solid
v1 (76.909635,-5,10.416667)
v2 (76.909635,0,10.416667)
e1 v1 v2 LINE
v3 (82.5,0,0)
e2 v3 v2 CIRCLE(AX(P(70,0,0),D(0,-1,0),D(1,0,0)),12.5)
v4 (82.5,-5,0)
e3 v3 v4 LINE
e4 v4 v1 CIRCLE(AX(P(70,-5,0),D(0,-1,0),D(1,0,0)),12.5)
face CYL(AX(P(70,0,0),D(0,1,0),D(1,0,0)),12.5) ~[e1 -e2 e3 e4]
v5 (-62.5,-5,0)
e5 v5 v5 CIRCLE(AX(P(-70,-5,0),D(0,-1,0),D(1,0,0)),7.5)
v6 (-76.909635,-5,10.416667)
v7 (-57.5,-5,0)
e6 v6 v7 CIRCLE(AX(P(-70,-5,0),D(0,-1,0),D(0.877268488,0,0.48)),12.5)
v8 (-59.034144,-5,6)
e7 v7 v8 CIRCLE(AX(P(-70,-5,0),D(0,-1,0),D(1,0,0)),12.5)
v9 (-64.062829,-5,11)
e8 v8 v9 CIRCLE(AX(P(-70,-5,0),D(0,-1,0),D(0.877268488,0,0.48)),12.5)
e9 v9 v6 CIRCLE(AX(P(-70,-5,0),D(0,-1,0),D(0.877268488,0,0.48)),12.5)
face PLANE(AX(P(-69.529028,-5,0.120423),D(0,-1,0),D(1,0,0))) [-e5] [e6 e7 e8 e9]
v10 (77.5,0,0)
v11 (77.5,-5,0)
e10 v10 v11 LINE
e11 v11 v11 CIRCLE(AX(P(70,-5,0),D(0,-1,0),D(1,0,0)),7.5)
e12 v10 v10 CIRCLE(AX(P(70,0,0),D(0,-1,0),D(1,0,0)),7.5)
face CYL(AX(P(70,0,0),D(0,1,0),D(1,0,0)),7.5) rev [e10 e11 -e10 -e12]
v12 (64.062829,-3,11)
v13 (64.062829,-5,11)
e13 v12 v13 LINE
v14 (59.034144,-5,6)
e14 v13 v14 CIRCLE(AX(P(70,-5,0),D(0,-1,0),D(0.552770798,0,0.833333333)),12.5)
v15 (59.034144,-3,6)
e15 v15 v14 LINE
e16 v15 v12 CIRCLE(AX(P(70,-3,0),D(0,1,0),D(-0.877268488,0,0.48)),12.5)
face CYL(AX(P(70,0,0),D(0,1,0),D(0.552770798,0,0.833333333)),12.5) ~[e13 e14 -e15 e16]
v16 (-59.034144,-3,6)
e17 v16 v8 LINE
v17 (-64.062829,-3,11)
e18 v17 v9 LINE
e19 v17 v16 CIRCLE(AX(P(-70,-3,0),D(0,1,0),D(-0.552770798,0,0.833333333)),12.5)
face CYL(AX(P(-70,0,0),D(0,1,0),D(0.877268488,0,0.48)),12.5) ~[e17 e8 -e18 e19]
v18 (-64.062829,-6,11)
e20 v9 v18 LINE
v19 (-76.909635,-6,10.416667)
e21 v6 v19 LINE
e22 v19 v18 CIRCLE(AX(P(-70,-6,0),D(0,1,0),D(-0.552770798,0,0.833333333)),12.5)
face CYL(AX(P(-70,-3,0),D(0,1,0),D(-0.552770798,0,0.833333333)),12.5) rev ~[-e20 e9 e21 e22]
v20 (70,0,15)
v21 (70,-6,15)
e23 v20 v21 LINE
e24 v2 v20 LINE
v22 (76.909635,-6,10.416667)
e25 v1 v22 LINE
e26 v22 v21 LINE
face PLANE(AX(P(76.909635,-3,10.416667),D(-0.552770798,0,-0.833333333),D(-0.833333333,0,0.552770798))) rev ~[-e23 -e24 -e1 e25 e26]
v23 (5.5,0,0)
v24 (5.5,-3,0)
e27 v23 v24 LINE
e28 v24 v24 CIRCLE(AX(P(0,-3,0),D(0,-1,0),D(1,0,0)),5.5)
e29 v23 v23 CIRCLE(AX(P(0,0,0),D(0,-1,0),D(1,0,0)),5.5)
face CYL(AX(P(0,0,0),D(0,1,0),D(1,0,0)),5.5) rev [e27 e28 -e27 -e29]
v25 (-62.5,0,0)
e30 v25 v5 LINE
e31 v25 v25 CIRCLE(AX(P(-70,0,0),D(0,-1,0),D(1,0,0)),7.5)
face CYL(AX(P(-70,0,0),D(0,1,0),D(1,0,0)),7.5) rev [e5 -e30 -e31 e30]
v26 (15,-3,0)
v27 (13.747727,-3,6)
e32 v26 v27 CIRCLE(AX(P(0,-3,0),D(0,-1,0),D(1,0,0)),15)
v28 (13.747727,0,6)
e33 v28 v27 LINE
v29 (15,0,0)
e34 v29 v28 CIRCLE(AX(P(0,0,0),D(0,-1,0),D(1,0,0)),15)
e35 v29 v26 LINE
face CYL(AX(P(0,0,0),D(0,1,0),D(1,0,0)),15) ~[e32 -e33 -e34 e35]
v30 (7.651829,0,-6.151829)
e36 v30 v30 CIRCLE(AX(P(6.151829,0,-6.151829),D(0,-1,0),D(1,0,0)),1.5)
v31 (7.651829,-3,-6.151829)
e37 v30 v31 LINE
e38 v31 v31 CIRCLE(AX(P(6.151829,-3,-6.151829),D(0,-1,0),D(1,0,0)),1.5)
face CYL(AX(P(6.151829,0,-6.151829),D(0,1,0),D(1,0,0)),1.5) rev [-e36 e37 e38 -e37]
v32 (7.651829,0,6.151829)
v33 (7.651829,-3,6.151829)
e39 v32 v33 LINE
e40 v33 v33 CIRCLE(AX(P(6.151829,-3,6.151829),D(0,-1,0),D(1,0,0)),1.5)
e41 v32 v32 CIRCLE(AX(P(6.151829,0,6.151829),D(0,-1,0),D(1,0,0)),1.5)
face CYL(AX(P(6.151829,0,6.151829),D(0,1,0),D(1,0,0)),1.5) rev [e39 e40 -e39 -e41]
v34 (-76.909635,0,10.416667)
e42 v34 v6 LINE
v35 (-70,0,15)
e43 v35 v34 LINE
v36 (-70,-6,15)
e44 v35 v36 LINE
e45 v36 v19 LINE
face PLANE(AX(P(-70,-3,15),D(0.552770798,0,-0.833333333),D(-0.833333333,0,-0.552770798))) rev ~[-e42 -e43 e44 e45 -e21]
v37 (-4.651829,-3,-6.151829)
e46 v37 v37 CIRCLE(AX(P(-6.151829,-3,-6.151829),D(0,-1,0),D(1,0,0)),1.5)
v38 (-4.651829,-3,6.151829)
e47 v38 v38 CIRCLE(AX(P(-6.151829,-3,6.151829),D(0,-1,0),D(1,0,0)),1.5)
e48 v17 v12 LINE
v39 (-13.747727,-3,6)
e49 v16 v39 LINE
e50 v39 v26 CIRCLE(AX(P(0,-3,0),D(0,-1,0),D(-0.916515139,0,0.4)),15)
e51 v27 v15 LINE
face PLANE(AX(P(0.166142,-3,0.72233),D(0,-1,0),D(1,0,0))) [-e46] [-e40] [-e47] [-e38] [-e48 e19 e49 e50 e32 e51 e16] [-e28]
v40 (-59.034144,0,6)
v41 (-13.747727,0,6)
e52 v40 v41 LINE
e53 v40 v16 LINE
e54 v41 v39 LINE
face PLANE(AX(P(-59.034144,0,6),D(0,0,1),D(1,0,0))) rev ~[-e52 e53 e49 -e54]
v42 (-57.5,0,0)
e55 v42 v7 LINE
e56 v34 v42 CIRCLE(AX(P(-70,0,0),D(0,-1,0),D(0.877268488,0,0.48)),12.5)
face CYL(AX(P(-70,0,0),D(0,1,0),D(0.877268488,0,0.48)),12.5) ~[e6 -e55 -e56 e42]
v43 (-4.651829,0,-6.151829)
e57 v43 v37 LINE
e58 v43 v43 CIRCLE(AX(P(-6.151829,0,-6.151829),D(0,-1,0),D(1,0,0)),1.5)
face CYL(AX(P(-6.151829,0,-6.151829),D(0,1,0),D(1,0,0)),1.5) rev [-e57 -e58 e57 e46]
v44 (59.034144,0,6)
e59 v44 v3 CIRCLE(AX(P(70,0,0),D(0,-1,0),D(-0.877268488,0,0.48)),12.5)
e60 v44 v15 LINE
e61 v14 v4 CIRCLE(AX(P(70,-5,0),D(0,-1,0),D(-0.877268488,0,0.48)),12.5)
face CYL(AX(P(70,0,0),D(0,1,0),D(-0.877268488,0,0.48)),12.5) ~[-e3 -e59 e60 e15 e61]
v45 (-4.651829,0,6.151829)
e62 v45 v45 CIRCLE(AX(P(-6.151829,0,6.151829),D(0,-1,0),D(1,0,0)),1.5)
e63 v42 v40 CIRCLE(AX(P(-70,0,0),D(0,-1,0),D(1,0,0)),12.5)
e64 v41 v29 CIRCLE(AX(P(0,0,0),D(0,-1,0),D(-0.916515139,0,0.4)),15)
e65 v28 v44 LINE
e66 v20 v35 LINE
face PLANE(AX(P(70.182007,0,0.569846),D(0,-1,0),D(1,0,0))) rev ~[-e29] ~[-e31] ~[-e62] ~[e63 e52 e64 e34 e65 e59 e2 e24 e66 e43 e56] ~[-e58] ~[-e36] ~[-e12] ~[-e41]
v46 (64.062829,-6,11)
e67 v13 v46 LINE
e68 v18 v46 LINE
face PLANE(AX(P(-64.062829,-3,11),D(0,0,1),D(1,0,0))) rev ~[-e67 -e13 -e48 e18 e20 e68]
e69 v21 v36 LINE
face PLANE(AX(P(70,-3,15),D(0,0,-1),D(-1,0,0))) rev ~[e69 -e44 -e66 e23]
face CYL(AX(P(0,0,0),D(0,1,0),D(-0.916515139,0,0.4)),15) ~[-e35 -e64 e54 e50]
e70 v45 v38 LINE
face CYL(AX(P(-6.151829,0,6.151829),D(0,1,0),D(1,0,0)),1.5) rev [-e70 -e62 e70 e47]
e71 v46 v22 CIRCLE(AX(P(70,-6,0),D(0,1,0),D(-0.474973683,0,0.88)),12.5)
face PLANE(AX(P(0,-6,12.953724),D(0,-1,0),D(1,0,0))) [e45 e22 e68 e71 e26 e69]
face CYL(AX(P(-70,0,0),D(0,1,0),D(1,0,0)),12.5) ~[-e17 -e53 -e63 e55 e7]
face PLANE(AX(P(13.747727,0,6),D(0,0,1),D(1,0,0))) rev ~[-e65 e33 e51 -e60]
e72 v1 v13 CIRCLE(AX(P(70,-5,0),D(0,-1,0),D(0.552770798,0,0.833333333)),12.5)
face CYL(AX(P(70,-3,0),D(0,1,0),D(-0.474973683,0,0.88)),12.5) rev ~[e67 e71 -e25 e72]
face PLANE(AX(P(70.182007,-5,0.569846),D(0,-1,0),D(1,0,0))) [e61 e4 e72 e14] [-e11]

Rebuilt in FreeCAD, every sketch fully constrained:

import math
import FreeCAD as App
import Part
import Sketcher
from FreeCAD import Vector

doc = App.newDocument("Part")
body = doc.addObject("PartDesign::Body", "Body")

# Sketch on XZ plane
sketch1 = doc.addObject("Sketcher::SketchObject", "Sketch")
body.addObject(sketch1)
sketch1.AttachmentSupport = (doc.XZ_Plane, [""])
sketch1.MapMode = "FlatFace"
sketch1.addGeometry([
    Part.ArcOfCircle(Part.Circle(Vector(0, 0, 0), Vector(0, 0, 1), 15), math.radians(0), math.radians(24)),  # 0
    Part.LineSegment(Vector(13.7, 6, 0), Vector(59, 6, 0)),  # 1
    Part.ArcOfCircle(Part.Circle(Vector(70, 0, 0), Vector(0, 0, 1), 12.5), math.radians(56), math.radians(151)),  # 2
    Part.LineSegment(Vector(76.9, 10.4, 0), Vector(70, 15, 0)),  # 3
    Part.LineSegment(Vector(70, 15, 0), Vector(-70, 15, 0)),  # 4
    Part.LineSegment(Vector(-70, 15, 0), Vector(-76.9, 10.4, 0)),  # 5
    Part.ArcOfCircle(Part.Circle(Vector(-70, 0, 0), Vector(0, 0, 1), 12.5), math.radians(29), math.radians(124)),  # 6
    Part.LineSegment(Vector(-59, 6, 0), Vector(-13.7, 6, 0)),  # 7
    Part.ArcOfCircle(Part.Circle(Vector(0, 0, 0), Vector(0, 0, 1), 15), math.radians(156), math.radians(360)),  # 8
    Part.Circle(Vector(-6.2, -6.2, 0), Vector(0, 0, 1), 1.5),  # 9
    Part.Circle(Vector(0, 0, 0), Vector(0, 0, 1), 5.5),  # 10
    Part.Circle(Vector(6.2, -6.2, 0), Vector(0, 0, 1), 1.5),  # 11
    Part.Circle(Vector(-6.2, 6.2, 0), Vector(0, 0, 1), 1.5),  # 12
    Part.Circle(Vector(6.2, 6.2, 0), Vector(0, 0, 1), 1.5),  # 13
], False)
sketch1.addConstraint([
    Sketcher.Constraint("Coincident", 0, 2, 1, 1),
    Sketcher.Constraint("Coincident", 1, 2, 2, 2),
    Sketcher.Constraint("Tangent", 2, 1, 3, 1),
    Sketcher.Constraint("Coincident", 3, 2, 4, 1),
    Sketcher.Constraint("Coincident", 4, 2, 5, 1),
    Sketcher.Constraint("Tangent", 5, 2, 6, 2),
    Sketcher.Constraint("Coincident", 6, 1, 7, 1),
    Sketcher.Constraint("Coincident", 7, 2, 8, 1),
    Sketcher.Constraint("Tangent", 8, 2, 0, 1),
    Sketcher.Constraint("Horizontal", 1),
    Sketcher.Constraint("Horizontal", 4),
    Sketcher.Constraint("Horizontal", 7),
    Sketcher.Constraint("Coincident", 0, 3, -1, 1),
    Sketcher.Constraint("Coincident", 10, 3, -1, 1),
    Sketcher.Constraint("Equal", 2, 6),
    Sketcher.Constraint("Equal", 0, 8),
    Sketcher.Constraint("Equal", 9, 11),
    Sketcher.Constraint("Equal", 11, 12),
    Sketcher.Constraint("Equal", 12, 13),
    Sketcher.Constraint("Symmetric", 2, 3, 6, 3, -1, 1),
    Sketcher.Constraint("Symmetric", 11, 3, 12, 3, -1, 1),
    Sketcher.Constraint("Symmetric", 9, 3, 13, 3, -1, 1),
    Sketcher.Constraint("Symmetric", 9, 3, 11, 3, -2),
    Sketcher.Constraint("Symmetric", 2, 1, 5, 2, -2),
    Sketcher.Constraint("PointOnObject", 8, 2, -1),
    Sketcher.Constraint("Horizontal", 1, 2, 6, 1),
    Sketcher.Constraint("Vertical", 2, 3, 3, 2),
    Sketcher.Constraint("Diameter", 9, 3.0),
    Sketcher.Constraint("Diameter", 10, 11.0),
    Sketcher.Constraint("Radius", 0, 15.0),
    Sketcher.Constraint("Radius", 2, 12.5),
    Sketcher.Constraint("DistanceX", 4, 2, 4, 1, 140.0),
    Sketcher.Constraint("DistanceY", -1, 1, 0, 2, 6.0),
    Sketcher.Constraint("DistanceY", -1, 1, 3, 2, 15.0),
    Sketcher.Constraint("DistanceX", 13, 3, 0, 2, 7.595898),
    Sketcher.Constraint("DistanceY", 9, 3, -1, 1, 6.151829),
])
pad1 = doc.addObject("PartDesign::Pad", "Pad")
body.addObject(pad1)
pad1.Profile = sketch1
pad1.Length = 3

# Sketch on XZ plane
sketch2 = doc.addObject("Sketcher::SketchObject", "Sketch001")
body.addObject(sketch2)
sketch2.AttachmentSupport = (doc.XZ_Plane, [""])
sketch2.MapMode = "FlatFace"
sketch2.addGeometry([
    Part.ArcOfCircle(Part.Circle(Vector(70, 0, 0), Vector(0, 0, 1), 12), math.radians(151), math.radians(360)),  # 0
    Part.ArcOfCircle(Part.Circle(Vector(70, 0, 0), Vector(0, 0, 1), 12), math.radians(0), math.radians(56)),  # 1
    Part.ArcOfCircle(Part.Circle(Vector(70, 0, 0), Vector(0, 0, 1), 12), math.radians(56), math.radians(151)),  # 2
    Part.Circle(Vector(70, 0, 0), Vector(0, 0, 1), 8),  # 3
    Part.ArcOfCircle(Part.Circle(Vector(-70, 0, 0), Vector(0, 0, 1), 12), math.radians(0), math.radians(29)),  # 4
    Part.ArcOfCircle(Part.Circle(Vector(-70, 0, 0), Vector(0, 0, 1), 12), math.radians(29), math.radians(360)),  # 5
    Part.Circle(Vector(-70, 0, 0), Vector(0, 0, 1), 8),  # 6
], False)
sketch2.addConstraint([
    Sketcher.Constraint("Tangent", 0, 2, 1, 1),
    Sketcher.Constraint("Tangent", 1, 2, 2, 1),
    Sketcher.Constraint("Tangent", 2, 2, 0, 1),
    Sketcher.Constraint("Tangent", 4, 1, 5, 2),
    Sketcher.Constraint("Coincident", 5, 1, 4, 2),
    Sketcher.Constraint("Coincident", 3, 3, 0, 3),
    Sketcher.Constraint("Coincident", 6, 3, 4, 3),
    Sketcher.Constraint("Equal", 2, 4),
    Sketcher.Constraint("Equal", 3, 6),
    Sketcher.Constraint("Symmetric", 0, 3, 4, 3, -1, 1),
    Sketcher.Constraint("Symmetric", 2, 2, 5, 1, -2),
    Sketcher.Constraint("PointOnObject", 0, 2, -1),
    Sketcher.Constraint("PointOnObject", 4, 1, -1),
    Sketcher.Constraint("Diameter", 3, 15.0),
    Sketcher.Constraint("Radius", 0, 12.5),
    Sketcher.Constraint("DistanceX", -1, 1, 0, 3, 70.0),
    Sketcher.Constraint("DistanceY", -1, 1, 2, 2, 6.0),
    Sketcher.Constraint("DistanceX", 2, 2, 1, 2, 17.875491),
])
pad2 = doc.addObject("PartDesign::Pad", "Pad001")
body.addObject(pad2)
pad2.Profile = sketch2
pad2.Length = 5

# Sketch on XZ plane
sketch3 = doc.addObject("Sketcher::SketchObject", "Sketch002")
body.addObject(sketch3)
sketch3.AttachmentSupport = (doc.XZ_Plane, [""])
sketch3.MapMode = "FlatFace"
sketch3.AttachmentOffset = App.Placement(Vector(0, 0, 3), App.Rotation())
sketch3.addGeometry([
    Part.ArcOfCircle(Part.Circle(Vector(70, 0, 0), Vector(0, 0, 1), 12), math.radians(56), math.radians(118)),  # 0
    Part.LineSegment(Vector(77, 10, 0), Vector(70, 15, 0)),  # 1
    Part.LineSegment(Vector(70, 15, 0), Vector(-70, 15, 0)),  # 2
    Part.LineSegment(Vector(-70, 15, 0), Vector(-77, 10, 0)),  # 3
    Part.ArcOfCircle(Part.Circle(Vector(-70, 0, 0), Vector(0, 0, 1), 12), math.radians(62), math.radians(124)),  # 4
    Part.LineSegment(Vector(-64, 11, 0), Vector(64, 11, 0)),  # 5
], False)
sketch3.addConstraint([
    Sketcher.Constraint("Tangent", 0, 1, 1, 1),
    Sketcher.Constraint("Coincident", 1, 2, 2, 1),
    Sketcher.Constraint("Coincident", 2, 2, 3, 1),
    Sketcher.Constraint("Tangent", 3, 2, 4, 2),
    Sketcher.Constraint("Coincident", 4, 1, 5, 1),
    Sketcher.Constraint("Coincident", 5, 2, 0, 2),
    Sketcher.Constraint("Horizontal", 2),
    Sketcher.Constraint("Horizontal", 5),
    Sketcher.Constraint("Equal", 0, 4),
    Sketcher.Constraint("Symmetric", 0, 3, 4, 3, -1, 1),
    Sketcher.Constraint("Symmetric", 0, 1, 3, 2, -2),
    Sketcher.Constraint("Vertical", 0, 3, 1, 2),
    Sketcher.Constraint("Radius", 0, 12.5),
    Sketcher.Constraint("DistanceX", 2, 2, 2, 1, 140.0),
    Sketcher.Constraint("DistanceY", -1, 1, 1, 2, 15.0),
    Sketcher.Constraint("DistanceY", -1, 1, 4, 1, 11.0),
])
pad3 = doc.addObject("PartDesign::Pad", "Pad002")
body.addObject(pad3)
pad3.Profile = sketch3
pad3.Length = 3

doc.recompute()
